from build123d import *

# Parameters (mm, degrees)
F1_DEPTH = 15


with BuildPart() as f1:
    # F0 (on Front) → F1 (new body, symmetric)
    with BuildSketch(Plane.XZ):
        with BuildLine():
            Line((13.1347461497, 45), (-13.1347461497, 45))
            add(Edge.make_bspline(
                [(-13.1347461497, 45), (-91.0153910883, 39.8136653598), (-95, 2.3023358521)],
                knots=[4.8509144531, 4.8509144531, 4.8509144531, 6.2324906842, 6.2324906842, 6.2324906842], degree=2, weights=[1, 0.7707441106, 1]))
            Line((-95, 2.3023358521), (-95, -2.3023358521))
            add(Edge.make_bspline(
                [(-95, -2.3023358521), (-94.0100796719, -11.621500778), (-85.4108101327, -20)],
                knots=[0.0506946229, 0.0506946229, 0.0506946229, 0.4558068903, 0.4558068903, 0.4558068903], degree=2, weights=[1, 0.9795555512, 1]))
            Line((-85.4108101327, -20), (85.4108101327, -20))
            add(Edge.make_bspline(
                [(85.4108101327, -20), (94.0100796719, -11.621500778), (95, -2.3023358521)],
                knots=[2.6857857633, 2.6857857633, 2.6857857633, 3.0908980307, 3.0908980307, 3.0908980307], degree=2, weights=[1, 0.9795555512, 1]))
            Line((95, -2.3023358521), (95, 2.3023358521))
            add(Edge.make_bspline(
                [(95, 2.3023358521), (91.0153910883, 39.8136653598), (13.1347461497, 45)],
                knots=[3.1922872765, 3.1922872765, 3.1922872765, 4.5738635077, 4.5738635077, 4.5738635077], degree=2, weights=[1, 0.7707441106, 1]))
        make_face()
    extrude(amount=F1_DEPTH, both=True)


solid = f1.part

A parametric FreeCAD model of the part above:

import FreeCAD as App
import Part
import Sketcher

V = App.Vector

doc = App.newDocument("Part")
body = doc.addObject("PartDesign::Body", "Body")

sketch1 = body.newObject("Sketcher::SketchObject", "Sketch")
sketch1.AttachmentSupport = (doc.getObject("XZ_Plane"), [""])
sketch1.MapMode = "FlatFace"
sketch1.addGeometry(Part.LineSegment(V(13.134746, 45, 0), V(-13.134746, 45, 0)), False)
sketch1.addGeometry(Part.BSplineCurve([V(-13.134746, 45, 0), V(-91.015391, 39.813665, 0), V(-95, 2.302336, 0)], [3, 3], [4.850914453, 6.232490684], False, 2, [1, 0.770744111, 1], False), False)
sketch1.addGeometry(Part.LineSegment(V(-95, 2.302336, 0), V(-95, -2.302336, 0)), False)
sketch1.addGeometry(Part.BSplineCurve([V(-95, -2.302336, 0), V(-94.01008, -11.621501, 0), V(-85.41081, -20, 0)], [3, 3], [0.050694623, 0.45580689], False, 2, [1, 0.979555551, 1], False), False)
sketch1.addGeometry(Part.LineSegment(V(-85.41081, -20, 0), V(85.41081, -20, 0)), False)
sketch1.addGeometry(Part.BSplineCurve([V(85.41081, -20, 0), V(94.01008, -11.621501, 0), V(95, -2.302336, 0)], [3, 3], [2.685785763, 3.090898031], False, 2, [1, 0.979555551, 1], False), False)
sketch1.addGeometry(Part.LineSegment(V(95, -2.302336, 0), V(95, 2.302336, 0)), False)
sketch1.addGeometry(Part.BSplineCurve([V(95, 2.302336, 0), V(91.015391, 39.813665, 0), V(13.134746, 45, 0)], [3, 3], [3.192287277, 4.573863508], False, 2, [1, 0.770744111, 1], False), False)
sketch1.addConstraint(Sketcher.Constraint("Block", 1))
sketch1.addConstraint(Sketcher.Constraint("Block", 3))
sketch1.addConstraint(Sketcher.Constraint("Block", 5))
sketch1.addConstraint(Sketcher.Constraint("Block", 7))
sketch1.addConstraint(Sketcher.Constraint("Coincident", 0, 2, 1, 1))
sketch1.addConstraint(Sketcher.Constraint("Coincident", 1, 2, 2, 1))
sketch1.addConstraint(Sketcher.Constraint("Coincident", 2, 2, 3, 1))
sketch1.addConstraint(Sketcher.Constraint("Coincident", 3, 2, 4, 1))
sketch1.addConstraint(Sketcher.Constraint("Coincident", 4, 2, 5, 1))
sketch1.addConstraint(Sketcher.Constraint("Coincident", 5, 2, 6, 1))
sketch1.addConstraint(Sketcher.Constraint("Coincident", 6, 2, 7, 1))
sketch1.addConstraint(Sketcher.Constraint("Coincident", 7, 2, 0, 1))
pad1 = body.newObject("PartDesign::Pad", "Pad")
pad1.Profile = sketch1
pad1.Length = 30
pad1.Midplane = True

doc.recompute()
